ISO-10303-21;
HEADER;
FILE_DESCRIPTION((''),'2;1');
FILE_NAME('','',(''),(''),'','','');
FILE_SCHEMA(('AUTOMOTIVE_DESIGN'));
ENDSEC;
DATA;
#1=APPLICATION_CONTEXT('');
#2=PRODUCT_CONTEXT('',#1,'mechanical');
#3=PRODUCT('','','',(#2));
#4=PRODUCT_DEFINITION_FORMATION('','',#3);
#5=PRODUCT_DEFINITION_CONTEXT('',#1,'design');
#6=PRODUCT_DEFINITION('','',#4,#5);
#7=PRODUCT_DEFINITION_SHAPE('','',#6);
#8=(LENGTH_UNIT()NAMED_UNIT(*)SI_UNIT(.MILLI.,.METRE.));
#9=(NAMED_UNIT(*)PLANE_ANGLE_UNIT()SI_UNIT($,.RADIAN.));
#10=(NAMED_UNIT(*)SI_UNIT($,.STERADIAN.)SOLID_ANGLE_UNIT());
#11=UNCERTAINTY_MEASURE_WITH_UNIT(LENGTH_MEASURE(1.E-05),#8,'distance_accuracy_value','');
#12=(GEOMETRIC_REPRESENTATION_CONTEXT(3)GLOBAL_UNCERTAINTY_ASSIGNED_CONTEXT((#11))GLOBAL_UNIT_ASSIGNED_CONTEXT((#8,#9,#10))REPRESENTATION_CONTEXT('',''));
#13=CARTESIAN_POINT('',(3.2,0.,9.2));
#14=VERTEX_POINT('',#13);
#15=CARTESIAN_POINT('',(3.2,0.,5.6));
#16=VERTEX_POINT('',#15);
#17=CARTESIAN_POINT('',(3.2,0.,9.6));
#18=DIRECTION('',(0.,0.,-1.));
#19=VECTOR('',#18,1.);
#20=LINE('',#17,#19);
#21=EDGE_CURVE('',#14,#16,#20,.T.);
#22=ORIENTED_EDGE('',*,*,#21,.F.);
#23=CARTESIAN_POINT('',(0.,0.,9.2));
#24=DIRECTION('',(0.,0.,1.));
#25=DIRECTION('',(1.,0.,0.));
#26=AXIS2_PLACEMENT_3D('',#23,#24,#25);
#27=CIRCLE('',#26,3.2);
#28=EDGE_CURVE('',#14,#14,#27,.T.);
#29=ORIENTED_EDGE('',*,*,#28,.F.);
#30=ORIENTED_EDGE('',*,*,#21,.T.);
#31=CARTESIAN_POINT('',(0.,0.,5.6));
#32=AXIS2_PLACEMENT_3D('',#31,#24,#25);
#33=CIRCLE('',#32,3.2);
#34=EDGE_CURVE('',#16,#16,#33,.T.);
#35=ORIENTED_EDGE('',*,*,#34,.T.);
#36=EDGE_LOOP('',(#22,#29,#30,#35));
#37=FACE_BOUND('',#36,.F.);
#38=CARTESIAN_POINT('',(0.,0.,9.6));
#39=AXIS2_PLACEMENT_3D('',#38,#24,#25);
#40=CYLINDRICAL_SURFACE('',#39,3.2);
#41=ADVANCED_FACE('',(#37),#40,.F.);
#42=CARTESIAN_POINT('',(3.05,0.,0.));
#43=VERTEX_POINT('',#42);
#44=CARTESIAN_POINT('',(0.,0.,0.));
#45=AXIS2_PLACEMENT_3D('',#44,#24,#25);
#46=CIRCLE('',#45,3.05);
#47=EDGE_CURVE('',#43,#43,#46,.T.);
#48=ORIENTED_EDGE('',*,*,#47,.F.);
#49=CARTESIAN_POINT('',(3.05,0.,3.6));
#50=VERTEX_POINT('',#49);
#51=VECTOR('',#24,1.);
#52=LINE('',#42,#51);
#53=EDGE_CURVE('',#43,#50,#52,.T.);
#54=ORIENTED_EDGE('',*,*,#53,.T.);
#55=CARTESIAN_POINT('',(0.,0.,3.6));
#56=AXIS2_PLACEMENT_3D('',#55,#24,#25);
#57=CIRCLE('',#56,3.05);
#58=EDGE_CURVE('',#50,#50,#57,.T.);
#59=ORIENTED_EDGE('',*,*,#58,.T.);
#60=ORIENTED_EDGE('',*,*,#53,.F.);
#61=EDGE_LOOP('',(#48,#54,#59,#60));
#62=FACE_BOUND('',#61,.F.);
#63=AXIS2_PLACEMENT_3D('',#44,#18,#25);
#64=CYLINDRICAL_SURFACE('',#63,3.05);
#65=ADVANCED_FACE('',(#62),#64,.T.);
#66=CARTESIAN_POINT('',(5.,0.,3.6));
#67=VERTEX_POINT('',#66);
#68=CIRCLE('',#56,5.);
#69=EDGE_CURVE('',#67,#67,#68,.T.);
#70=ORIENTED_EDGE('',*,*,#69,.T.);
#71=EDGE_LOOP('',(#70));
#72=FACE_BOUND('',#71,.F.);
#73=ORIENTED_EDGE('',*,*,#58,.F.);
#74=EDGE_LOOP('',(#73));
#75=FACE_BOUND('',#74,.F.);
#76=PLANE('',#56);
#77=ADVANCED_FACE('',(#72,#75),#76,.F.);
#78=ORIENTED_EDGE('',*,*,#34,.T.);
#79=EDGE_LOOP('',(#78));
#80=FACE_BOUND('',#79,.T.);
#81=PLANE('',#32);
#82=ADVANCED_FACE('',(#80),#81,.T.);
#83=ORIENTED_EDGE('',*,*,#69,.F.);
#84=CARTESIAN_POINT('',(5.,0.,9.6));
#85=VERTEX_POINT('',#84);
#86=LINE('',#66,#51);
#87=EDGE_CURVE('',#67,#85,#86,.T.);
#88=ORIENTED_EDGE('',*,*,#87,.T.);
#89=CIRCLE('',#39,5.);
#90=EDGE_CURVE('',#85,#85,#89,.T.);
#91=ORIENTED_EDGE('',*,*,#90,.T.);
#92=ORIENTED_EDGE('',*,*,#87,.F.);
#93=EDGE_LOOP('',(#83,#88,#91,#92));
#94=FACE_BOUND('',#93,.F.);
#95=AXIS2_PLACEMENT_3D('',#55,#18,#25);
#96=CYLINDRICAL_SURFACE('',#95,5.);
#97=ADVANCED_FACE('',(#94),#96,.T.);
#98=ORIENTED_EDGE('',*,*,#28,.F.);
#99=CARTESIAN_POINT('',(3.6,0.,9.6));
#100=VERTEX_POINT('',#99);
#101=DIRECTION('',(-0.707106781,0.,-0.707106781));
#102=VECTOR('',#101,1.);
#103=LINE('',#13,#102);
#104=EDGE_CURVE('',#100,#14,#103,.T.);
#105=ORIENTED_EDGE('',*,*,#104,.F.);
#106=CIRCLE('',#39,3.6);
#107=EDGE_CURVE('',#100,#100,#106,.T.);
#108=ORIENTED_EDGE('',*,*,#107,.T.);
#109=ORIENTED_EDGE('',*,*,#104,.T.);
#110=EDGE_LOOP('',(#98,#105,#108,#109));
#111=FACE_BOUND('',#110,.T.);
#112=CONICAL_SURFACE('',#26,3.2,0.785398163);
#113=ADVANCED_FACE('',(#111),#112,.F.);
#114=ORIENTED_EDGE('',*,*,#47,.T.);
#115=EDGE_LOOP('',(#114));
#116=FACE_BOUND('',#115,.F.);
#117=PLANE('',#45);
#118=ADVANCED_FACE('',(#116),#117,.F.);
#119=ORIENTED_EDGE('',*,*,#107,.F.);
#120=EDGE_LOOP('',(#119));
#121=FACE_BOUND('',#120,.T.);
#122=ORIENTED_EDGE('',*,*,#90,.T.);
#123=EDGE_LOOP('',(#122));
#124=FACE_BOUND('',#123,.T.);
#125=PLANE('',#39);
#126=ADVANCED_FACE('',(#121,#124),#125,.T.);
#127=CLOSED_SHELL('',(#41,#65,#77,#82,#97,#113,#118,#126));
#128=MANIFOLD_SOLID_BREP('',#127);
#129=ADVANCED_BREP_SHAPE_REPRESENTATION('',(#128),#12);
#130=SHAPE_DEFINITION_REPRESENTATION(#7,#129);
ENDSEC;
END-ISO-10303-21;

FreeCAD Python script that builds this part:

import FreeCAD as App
import Part
import Sketcher


def edges_at(feature, points):
    """Names of the edges that pass closest to the given points."""
    edges = feature.Shape.Edges
    near = lambda p: min(range(len(edges)), key=lambda i: edges[i].distToShape(Part.Vertex(*p))[0])
    return sorted({f"Edge{near(p) + 1}" for p in points})

doc = App.newDocument("Part")
body = doc.addObject("PartDesign::Body", "Body")

sketch1 = body.newObject("Sketcher::SketchObject", "Sketch")
sketch1.AttachmentSupport = (doc.getObject("XY_Plane"), [""])
sketch1.MapMode = "FlatFace"
sketch1.addGeometry(Part.Circle(App.Vector(0, 0, 0), App.Vector(0, 0, 1), 3), False)
sketch1.addConstraint([
    Sketcher.Constraint("Coincident", 0, 3, -1, 1),
    Sketcher.Constraint("Diameter", 0, 6.1),
])
pad1 = body.newObject("PartDesign::Pad", "Pad")
pad1.Profile = sketch1
pad1.Length = 3.6

sketch2 = body.newObject("Sketcher::SketchObject", "Sketch001")
sketch2.AttachmentSupport = (doc.getObject("XY_Plane"), [""])
sketch2.MapMode = "FlatFace"
sketch2.AttachmentOffset = App.Placement(App.Vector(0, 0, 3.6), App.Rotation())
sketch2.addGeometry(Part.Circle(App.Vector(0, 0, 0), App.Vector(0, 0, 1), 5), False)
sketch2.addConstraint([
    Sketcher.Constraint("Coincident", 0, 3, -1, 1),
    Sketcher.Constraint("Diameter", 0, 10.0),
])
pad2 = body.newObject("PartDesign::Pad", "Pad001")
pad2.Profile = sketch2
pad2.Length = 6

sketch3 = body.newObject("Sketcher::SketchObject", "Sketch002")
sketch3.AttachmentSupport = (doc.getObject("XY_Plane"), [""])
sketch3.MapMode = "FlatFace"
sketch3.AttachmentOffset = App.Placement(App.Vector(0, 0, 9.6), App.Rotation())
sketch3.addGeometry(Part.Circle(App.Vector(0, 0, 0), App.Vector(0, 0, 1), 3.2), False)
sketch3.addConstraint([
    Sketcher.Constraint("Coincident", 0, 3, -1, 1),
    Sketcher.Constraint("Diameter", 0, 6.4),
])
pocket1 = body.newObject("PartDesign::Pocket", "Pocket")
pocket1.Profile = sketch3
pocket1.Length = 4
doc.recompute()

chamfer = body.newObject("PartDesign::Chamfer", "Chamfer")
chamfer.Base = (pocket1, edges_at(pocket1, [(-3.2, 0, 9.6)]))
chamfer.Size = 0.4

doc.recompute()
